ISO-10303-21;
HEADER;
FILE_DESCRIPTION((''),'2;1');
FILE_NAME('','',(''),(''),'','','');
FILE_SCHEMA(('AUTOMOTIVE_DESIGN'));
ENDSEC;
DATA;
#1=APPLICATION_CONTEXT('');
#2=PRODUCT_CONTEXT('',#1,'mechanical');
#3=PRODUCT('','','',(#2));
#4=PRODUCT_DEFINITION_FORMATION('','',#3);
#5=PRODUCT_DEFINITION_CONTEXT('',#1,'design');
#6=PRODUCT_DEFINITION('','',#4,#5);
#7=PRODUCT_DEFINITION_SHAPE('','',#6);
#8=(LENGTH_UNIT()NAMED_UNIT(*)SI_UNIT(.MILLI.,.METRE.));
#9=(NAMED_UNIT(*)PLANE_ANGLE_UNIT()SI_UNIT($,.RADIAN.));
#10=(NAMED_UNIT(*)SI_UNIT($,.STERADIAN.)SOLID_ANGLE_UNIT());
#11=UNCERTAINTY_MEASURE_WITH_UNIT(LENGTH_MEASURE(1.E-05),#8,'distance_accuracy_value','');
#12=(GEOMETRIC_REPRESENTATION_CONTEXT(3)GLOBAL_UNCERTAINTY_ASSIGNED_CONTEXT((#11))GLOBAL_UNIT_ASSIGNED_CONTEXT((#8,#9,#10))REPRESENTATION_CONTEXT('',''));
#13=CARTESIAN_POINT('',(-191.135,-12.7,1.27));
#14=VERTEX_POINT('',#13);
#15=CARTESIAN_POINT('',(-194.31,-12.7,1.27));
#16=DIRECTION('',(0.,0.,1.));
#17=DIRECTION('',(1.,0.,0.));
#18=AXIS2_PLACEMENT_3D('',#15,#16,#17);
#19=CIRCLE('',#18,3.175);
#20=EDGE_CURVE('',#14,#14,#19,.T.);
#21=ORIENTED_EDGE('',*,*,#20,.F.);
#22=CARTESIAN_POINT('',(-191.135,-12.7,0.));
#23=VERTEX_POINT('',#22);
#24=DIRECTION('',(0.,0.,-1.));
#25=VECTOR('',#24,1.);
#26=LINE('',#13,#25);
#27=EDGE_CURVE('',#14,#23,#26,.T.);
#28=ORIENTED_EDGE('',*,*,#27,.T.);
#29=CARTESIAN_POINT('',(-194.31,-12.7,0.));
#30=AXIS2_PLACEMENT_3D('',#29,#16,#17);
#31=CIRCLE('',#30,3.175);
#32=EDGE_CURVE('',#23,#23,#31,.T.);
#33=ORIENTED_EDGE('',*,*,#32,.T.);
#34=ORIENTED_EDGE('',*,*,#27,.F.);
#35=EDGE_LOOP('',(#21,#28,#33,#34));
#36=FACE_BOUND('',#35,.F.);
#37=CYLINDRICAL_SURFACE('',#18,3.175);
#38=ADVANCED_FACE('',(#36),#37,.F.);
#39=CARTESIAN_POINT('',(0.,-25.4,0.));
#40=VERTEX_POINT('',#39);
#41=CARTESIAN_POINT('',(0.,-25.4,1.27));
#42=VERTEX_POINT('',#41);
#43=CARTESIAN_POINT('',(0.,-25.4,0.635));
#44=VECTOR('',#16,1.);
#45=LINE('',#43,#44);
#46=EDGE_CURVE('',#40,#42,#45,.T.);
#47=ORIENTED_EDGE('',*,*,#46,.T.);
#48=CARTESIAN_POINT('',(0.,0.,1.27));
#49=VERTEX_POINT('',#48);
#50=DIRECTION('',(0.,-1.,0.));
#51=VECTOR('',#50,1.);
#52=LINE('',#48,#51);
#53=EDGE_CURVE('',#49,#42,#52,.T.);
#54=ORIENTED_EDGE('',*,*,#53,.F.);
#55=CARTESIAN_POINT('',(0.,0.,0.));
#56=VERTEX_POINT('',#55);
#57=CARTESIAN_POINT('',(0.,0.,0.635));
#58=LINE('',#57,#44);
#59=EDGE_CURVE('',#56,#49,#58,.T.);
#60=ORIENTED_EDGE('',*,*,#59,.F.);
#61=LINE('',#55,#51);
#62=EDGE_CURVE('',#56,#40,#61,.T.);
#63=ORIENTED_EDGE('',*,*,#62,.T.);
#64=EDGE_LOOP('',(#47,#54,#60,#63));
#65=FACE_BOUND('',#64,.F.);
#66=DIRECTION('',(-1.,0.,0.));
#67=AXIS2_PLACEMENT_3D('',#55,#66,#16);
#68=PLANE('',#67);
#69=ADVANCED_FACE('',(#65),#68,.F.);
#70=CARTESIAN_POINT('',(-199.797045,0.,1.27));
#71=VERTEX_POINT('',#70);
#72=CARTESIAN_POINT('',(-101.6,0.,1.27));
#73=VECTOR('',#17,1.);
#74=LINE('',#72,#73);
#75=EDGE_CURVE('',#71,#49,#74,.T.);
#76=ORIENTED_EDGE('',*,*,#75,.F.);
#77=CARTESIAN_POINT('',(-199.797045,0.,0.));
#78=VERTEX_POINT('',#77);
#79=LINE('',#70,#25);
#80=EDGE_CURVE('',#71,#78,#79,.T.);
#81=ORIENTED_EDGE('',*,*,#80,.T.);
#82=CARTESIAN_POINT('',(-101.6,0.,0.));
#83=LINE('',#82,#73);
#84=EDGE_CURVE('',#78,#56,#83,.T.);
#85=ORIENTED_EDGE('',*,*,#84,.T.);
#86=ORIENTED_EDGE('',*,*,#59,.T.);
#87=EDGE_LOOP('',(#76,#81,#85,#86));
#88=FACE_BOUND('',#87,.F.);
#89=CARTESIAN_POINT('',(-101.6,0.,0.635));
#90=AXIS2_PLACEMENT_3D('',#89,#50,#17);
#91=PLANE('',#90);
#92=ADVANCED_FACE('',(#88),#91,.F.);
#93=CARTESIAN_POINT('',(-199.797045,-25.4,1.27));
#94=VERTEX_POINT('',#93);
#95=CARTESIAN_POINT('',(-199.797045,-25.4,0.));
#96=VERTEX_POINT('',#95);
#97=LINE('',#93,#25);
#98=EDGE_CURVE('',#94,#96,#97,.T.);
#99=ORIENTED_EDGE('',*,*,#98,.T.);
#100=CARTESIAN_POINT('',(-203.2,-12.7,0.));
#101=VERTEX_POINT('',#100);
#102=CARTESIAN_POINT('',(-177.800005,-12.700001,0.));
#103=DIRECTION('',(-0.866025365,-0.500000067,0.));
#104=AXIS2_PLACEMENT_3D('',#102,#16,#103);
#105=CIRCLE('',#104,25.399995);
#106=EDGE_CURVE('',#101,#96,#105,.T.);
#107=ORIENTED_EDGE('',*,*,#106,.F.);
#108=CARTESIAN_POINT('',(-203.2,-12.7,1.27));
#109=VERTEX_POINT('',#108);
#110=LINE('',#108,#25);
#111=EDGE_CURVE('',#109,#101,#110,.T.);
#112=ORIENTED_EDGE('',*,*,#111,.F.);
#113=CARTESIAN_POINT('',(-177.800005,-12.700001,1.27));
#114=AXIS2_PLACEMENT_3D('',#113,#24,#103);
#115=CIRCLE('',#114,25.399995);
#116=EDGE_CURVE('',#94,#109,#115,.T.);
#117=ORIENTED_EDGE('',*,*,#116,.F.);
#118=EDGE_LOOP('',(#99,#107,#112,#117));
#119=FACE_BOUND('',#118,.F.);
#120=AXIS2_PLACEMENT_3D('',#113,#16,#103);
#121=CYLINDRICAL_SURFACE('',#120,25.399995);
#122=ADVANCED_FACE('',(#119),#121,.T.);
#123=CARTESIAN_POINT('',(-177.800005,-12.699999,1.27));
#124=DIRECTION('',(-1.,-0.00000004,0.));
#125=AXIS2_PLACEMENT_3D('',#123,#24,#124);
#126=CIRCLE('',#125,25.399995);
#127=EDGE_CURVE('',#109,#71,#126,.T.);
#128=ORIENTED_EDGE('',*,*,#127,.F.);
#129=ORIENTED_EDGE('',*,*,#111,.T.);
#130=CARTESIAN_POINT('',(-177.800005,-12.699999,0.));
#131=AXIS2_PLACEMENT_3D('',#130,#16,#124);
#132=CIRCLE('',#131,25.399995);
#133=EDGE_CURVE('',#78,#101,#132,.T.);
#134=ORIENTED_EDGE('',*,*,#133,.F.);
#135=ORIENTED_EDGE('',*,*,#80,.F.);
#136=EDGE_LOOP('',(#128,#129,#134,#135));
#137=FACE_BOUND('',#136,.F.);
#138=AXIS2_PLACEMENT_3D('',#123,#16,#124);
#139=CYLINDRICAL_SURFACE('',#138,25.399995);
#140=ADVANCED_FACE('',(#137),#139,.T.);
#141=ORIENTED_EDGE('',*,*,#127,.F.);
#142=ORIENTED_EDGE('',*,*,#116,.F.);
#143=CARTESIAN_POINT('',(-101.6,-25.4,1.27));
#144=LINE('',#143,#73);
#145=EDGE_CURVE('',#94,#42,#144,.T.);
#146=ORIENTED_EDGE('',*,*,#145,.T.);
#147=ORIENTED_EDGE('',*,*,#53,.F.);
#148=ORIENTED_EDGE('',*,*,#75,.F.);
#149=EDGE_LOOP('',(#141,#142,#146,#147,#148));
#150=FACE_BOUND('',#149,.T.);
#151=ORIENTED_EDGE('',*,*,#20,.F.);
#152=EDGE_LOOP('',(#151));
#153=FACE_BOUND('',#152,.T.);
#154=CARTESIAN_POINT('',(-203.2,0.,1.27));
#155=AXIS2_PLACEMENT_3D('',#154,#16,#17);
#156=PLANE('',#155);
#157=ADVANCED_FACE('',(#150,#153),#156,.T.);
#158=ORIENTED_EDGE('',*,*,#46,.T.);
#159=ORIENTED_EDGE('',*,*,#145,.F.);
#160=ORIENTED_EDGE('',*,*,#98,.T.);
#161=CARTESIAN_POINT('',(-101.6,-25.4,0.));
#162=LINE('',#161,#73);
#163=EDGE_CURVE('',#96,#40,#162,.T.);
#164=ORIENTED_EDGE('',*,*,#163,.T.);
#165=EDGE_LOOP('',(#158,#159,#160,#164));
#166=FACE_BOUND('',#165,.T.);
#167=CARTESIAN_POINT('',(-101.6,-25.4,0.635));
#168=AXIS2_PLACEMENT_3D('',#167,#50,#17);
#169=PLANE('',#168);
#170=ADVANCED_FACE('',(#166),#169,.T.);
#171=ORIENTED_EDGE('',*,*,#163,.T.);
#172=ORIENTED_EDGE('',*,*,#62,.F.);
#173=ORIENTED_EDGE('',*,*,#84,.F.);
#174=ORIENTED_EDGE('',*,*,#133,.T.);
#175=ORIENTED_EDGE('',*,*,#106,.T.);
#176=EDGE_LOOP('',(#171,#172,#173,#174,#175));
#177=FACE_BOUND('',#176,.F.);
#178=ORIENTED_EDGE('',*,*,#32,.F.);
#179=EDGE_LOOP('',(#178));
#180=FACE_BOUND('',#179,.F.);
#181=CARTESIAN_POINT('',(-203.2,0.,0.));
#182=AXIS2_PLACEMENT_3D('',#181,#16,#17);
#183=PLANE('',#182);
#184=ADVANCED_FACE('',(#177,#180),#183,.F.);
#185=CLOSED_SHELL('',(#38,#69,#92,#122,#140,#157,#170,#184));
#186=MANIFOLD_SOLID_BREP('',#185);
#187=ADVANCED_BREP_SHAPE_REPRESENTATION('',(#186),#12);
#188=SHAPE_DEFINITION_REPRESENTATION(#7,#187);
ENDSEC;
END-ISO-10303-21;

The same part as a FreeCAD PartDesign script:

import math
import FreeCAD as App
import Part
import Sketcher

V = App.Vector
Q = App.Units.Quantity


def add_polygon(sketch, points):
    """Adds a closed chain of lines whose ends are joined by coincident constraints."""
    first, n = sketch.GeometryCount, len(points)
    for a, b in zip(points, points[1:] + points[:1]):
        sketch.addGeometry(Part.LineSegment(App.Vector(*a, 0), App.Vector(*b, 0)), False)
    for i in range(n):
        sketch.addConstraint(Sketcher.Constraint("Coincident", first + i, 2, first + (i + 1) % n, 1))

doc = App.newDocument("Part")
body = doc.addObject("PartDesign::Body", "Body")

# Sketch on XZ plane
sketch1 = doc.addObject("Sketcher::SketchObject", "Sketch")
body.addObject(sketch1)
sketch1.AttachmentSupport = (doc.XZ_Plane, [""])
sketch1.MapMode = "FlatFace"
add_polygon(sketch1, [(-203.2, 1.3), (-203.2, 0), (0, 0), (0, 1.3)])  # lines 0-3
sketch1.addConstraint([
    Sketcher.Constraint("Vertical", 0),
    Sketcher.Constraint("Horizontal", 1),
    Sketcher.Constraint("Vertical", 2),
    Sketcher.Constraint("Horizontal", 3),
    Sketcher.Constraint("Coincident", 1, 2, -1, 1),
    Sketcher.Constraint("DistanceX", 1, 1, 1, 2, Q("8 in")),
    Sketcher.Constraint("DistanceY", 0, 2, 0, 1, Q("0.05 in")),
])
pad1 = doc.addObject("PartDesign::Pad", "Pad")
body.addObject(pad1)
pad1.Profile = sketch1
pad1.Length = Q("1 in")

# Sketch on XY plane
sketch2 = doc.addObject("Sketcher::SketchObject", "Sketch001")
body.addObject(sketch2)
sketch2.AttachmentSupport = (doc.XY_Plane, [""])
sketch2.MapMode = "FlatFace"
sketch2.AttachmentOffset = App.Placement(V(0, 0, 0.05 * 25.4), App.Rotation())
sketch2.addGeometry([
    Part.ArcOfCircle(Part.Circle(V(-177.8, -12.7, 0), V(0, 0, 1), 25.4), math.radians(180), math.radians(210)),  # 0
    Part.LineSegment(V(-203.2, -12.7, 0), V(-203.2, -25.4, 0)),  # 1
    Part.LineSegment(V(-203.2, -25.4, 0), V(-199.8, -25.4, 0)),  # 2
    Part.ArcOfCircle(Part.Circle(V(-177.8, -12.7, 0), V(0, 0, 1), 25.4), math.radians(150), math.radians(180)),  # 3
    Part.LineSegment(V(-199.8, 0, 0), V(-203.2, 0, 0)),  # 4
    Part.LineSegment(V(-203.2, 0, 0), V(-203.2, -12.7, 0)),  # 5
    Part.Circle(V(-194.3, -12.7, 0), V(0, 0, 1), 3.2),  # 6
], False)
sketch2.addConstraint([
    Sketcher.Constraint("Tangent", 0, 1, 1, 1),
    Sketcher.Constraint("Coincident", 1, 2, 2, 1),
    Sketcher.Constraint("Coincident", 2, 2, 0, 2),
    Sketcher.Constraint("Coincident", 3, 1, 4, 1),
    Sketcher.Constraint("Coincident", 4, 2, 5, 1),
    Sketcher.Constraint("Tangent", 5, 2, 3, 2),
    Sketcher.Constraint("Vertical", 1),
    Sketcher.Constraint("Horizontal", 2),
    Sketcher.Constraint("Horizontal", 4),
    Sketcher.Constraint("Vertical", 5),
    Sketcher.Constraint("Coincident", 3, 3, 0, 3),
    Sketcher.Constraint("Equal", 0, 3),
    Sketcher.Constraint("PointOnObject", 3, 1, -1),
    Sketcher.Constraint("Horizontal", 3, 3, 6, 3),
    Sketcher.Constraint("Vertical", 2, 2, 3, 1),
    Sketcher.Constraint("Diameter", 6, Q("0.25 in")),
    Sketcher.Constraint("DistanceY", 1, 2, 1, 1, Q("0.5 in")),
    Sketcher.Constraint("DistanceX", 0, 1, -1, 1, Q("8 in")),
    Sketcher.Constraint("DistanceX", 6, 3, -1, 1, Q("7.65 in")),
    Sketcher.Constraint("Radius", 0, 25.399995),
])
pocket1 = doc.addObject("PartDesign::Pocket", "Pocket")
body.addObject(pocket1)
pocket1.Profile = sketch2
pocket1.Length = Q("1 in")

doc.recompute()
